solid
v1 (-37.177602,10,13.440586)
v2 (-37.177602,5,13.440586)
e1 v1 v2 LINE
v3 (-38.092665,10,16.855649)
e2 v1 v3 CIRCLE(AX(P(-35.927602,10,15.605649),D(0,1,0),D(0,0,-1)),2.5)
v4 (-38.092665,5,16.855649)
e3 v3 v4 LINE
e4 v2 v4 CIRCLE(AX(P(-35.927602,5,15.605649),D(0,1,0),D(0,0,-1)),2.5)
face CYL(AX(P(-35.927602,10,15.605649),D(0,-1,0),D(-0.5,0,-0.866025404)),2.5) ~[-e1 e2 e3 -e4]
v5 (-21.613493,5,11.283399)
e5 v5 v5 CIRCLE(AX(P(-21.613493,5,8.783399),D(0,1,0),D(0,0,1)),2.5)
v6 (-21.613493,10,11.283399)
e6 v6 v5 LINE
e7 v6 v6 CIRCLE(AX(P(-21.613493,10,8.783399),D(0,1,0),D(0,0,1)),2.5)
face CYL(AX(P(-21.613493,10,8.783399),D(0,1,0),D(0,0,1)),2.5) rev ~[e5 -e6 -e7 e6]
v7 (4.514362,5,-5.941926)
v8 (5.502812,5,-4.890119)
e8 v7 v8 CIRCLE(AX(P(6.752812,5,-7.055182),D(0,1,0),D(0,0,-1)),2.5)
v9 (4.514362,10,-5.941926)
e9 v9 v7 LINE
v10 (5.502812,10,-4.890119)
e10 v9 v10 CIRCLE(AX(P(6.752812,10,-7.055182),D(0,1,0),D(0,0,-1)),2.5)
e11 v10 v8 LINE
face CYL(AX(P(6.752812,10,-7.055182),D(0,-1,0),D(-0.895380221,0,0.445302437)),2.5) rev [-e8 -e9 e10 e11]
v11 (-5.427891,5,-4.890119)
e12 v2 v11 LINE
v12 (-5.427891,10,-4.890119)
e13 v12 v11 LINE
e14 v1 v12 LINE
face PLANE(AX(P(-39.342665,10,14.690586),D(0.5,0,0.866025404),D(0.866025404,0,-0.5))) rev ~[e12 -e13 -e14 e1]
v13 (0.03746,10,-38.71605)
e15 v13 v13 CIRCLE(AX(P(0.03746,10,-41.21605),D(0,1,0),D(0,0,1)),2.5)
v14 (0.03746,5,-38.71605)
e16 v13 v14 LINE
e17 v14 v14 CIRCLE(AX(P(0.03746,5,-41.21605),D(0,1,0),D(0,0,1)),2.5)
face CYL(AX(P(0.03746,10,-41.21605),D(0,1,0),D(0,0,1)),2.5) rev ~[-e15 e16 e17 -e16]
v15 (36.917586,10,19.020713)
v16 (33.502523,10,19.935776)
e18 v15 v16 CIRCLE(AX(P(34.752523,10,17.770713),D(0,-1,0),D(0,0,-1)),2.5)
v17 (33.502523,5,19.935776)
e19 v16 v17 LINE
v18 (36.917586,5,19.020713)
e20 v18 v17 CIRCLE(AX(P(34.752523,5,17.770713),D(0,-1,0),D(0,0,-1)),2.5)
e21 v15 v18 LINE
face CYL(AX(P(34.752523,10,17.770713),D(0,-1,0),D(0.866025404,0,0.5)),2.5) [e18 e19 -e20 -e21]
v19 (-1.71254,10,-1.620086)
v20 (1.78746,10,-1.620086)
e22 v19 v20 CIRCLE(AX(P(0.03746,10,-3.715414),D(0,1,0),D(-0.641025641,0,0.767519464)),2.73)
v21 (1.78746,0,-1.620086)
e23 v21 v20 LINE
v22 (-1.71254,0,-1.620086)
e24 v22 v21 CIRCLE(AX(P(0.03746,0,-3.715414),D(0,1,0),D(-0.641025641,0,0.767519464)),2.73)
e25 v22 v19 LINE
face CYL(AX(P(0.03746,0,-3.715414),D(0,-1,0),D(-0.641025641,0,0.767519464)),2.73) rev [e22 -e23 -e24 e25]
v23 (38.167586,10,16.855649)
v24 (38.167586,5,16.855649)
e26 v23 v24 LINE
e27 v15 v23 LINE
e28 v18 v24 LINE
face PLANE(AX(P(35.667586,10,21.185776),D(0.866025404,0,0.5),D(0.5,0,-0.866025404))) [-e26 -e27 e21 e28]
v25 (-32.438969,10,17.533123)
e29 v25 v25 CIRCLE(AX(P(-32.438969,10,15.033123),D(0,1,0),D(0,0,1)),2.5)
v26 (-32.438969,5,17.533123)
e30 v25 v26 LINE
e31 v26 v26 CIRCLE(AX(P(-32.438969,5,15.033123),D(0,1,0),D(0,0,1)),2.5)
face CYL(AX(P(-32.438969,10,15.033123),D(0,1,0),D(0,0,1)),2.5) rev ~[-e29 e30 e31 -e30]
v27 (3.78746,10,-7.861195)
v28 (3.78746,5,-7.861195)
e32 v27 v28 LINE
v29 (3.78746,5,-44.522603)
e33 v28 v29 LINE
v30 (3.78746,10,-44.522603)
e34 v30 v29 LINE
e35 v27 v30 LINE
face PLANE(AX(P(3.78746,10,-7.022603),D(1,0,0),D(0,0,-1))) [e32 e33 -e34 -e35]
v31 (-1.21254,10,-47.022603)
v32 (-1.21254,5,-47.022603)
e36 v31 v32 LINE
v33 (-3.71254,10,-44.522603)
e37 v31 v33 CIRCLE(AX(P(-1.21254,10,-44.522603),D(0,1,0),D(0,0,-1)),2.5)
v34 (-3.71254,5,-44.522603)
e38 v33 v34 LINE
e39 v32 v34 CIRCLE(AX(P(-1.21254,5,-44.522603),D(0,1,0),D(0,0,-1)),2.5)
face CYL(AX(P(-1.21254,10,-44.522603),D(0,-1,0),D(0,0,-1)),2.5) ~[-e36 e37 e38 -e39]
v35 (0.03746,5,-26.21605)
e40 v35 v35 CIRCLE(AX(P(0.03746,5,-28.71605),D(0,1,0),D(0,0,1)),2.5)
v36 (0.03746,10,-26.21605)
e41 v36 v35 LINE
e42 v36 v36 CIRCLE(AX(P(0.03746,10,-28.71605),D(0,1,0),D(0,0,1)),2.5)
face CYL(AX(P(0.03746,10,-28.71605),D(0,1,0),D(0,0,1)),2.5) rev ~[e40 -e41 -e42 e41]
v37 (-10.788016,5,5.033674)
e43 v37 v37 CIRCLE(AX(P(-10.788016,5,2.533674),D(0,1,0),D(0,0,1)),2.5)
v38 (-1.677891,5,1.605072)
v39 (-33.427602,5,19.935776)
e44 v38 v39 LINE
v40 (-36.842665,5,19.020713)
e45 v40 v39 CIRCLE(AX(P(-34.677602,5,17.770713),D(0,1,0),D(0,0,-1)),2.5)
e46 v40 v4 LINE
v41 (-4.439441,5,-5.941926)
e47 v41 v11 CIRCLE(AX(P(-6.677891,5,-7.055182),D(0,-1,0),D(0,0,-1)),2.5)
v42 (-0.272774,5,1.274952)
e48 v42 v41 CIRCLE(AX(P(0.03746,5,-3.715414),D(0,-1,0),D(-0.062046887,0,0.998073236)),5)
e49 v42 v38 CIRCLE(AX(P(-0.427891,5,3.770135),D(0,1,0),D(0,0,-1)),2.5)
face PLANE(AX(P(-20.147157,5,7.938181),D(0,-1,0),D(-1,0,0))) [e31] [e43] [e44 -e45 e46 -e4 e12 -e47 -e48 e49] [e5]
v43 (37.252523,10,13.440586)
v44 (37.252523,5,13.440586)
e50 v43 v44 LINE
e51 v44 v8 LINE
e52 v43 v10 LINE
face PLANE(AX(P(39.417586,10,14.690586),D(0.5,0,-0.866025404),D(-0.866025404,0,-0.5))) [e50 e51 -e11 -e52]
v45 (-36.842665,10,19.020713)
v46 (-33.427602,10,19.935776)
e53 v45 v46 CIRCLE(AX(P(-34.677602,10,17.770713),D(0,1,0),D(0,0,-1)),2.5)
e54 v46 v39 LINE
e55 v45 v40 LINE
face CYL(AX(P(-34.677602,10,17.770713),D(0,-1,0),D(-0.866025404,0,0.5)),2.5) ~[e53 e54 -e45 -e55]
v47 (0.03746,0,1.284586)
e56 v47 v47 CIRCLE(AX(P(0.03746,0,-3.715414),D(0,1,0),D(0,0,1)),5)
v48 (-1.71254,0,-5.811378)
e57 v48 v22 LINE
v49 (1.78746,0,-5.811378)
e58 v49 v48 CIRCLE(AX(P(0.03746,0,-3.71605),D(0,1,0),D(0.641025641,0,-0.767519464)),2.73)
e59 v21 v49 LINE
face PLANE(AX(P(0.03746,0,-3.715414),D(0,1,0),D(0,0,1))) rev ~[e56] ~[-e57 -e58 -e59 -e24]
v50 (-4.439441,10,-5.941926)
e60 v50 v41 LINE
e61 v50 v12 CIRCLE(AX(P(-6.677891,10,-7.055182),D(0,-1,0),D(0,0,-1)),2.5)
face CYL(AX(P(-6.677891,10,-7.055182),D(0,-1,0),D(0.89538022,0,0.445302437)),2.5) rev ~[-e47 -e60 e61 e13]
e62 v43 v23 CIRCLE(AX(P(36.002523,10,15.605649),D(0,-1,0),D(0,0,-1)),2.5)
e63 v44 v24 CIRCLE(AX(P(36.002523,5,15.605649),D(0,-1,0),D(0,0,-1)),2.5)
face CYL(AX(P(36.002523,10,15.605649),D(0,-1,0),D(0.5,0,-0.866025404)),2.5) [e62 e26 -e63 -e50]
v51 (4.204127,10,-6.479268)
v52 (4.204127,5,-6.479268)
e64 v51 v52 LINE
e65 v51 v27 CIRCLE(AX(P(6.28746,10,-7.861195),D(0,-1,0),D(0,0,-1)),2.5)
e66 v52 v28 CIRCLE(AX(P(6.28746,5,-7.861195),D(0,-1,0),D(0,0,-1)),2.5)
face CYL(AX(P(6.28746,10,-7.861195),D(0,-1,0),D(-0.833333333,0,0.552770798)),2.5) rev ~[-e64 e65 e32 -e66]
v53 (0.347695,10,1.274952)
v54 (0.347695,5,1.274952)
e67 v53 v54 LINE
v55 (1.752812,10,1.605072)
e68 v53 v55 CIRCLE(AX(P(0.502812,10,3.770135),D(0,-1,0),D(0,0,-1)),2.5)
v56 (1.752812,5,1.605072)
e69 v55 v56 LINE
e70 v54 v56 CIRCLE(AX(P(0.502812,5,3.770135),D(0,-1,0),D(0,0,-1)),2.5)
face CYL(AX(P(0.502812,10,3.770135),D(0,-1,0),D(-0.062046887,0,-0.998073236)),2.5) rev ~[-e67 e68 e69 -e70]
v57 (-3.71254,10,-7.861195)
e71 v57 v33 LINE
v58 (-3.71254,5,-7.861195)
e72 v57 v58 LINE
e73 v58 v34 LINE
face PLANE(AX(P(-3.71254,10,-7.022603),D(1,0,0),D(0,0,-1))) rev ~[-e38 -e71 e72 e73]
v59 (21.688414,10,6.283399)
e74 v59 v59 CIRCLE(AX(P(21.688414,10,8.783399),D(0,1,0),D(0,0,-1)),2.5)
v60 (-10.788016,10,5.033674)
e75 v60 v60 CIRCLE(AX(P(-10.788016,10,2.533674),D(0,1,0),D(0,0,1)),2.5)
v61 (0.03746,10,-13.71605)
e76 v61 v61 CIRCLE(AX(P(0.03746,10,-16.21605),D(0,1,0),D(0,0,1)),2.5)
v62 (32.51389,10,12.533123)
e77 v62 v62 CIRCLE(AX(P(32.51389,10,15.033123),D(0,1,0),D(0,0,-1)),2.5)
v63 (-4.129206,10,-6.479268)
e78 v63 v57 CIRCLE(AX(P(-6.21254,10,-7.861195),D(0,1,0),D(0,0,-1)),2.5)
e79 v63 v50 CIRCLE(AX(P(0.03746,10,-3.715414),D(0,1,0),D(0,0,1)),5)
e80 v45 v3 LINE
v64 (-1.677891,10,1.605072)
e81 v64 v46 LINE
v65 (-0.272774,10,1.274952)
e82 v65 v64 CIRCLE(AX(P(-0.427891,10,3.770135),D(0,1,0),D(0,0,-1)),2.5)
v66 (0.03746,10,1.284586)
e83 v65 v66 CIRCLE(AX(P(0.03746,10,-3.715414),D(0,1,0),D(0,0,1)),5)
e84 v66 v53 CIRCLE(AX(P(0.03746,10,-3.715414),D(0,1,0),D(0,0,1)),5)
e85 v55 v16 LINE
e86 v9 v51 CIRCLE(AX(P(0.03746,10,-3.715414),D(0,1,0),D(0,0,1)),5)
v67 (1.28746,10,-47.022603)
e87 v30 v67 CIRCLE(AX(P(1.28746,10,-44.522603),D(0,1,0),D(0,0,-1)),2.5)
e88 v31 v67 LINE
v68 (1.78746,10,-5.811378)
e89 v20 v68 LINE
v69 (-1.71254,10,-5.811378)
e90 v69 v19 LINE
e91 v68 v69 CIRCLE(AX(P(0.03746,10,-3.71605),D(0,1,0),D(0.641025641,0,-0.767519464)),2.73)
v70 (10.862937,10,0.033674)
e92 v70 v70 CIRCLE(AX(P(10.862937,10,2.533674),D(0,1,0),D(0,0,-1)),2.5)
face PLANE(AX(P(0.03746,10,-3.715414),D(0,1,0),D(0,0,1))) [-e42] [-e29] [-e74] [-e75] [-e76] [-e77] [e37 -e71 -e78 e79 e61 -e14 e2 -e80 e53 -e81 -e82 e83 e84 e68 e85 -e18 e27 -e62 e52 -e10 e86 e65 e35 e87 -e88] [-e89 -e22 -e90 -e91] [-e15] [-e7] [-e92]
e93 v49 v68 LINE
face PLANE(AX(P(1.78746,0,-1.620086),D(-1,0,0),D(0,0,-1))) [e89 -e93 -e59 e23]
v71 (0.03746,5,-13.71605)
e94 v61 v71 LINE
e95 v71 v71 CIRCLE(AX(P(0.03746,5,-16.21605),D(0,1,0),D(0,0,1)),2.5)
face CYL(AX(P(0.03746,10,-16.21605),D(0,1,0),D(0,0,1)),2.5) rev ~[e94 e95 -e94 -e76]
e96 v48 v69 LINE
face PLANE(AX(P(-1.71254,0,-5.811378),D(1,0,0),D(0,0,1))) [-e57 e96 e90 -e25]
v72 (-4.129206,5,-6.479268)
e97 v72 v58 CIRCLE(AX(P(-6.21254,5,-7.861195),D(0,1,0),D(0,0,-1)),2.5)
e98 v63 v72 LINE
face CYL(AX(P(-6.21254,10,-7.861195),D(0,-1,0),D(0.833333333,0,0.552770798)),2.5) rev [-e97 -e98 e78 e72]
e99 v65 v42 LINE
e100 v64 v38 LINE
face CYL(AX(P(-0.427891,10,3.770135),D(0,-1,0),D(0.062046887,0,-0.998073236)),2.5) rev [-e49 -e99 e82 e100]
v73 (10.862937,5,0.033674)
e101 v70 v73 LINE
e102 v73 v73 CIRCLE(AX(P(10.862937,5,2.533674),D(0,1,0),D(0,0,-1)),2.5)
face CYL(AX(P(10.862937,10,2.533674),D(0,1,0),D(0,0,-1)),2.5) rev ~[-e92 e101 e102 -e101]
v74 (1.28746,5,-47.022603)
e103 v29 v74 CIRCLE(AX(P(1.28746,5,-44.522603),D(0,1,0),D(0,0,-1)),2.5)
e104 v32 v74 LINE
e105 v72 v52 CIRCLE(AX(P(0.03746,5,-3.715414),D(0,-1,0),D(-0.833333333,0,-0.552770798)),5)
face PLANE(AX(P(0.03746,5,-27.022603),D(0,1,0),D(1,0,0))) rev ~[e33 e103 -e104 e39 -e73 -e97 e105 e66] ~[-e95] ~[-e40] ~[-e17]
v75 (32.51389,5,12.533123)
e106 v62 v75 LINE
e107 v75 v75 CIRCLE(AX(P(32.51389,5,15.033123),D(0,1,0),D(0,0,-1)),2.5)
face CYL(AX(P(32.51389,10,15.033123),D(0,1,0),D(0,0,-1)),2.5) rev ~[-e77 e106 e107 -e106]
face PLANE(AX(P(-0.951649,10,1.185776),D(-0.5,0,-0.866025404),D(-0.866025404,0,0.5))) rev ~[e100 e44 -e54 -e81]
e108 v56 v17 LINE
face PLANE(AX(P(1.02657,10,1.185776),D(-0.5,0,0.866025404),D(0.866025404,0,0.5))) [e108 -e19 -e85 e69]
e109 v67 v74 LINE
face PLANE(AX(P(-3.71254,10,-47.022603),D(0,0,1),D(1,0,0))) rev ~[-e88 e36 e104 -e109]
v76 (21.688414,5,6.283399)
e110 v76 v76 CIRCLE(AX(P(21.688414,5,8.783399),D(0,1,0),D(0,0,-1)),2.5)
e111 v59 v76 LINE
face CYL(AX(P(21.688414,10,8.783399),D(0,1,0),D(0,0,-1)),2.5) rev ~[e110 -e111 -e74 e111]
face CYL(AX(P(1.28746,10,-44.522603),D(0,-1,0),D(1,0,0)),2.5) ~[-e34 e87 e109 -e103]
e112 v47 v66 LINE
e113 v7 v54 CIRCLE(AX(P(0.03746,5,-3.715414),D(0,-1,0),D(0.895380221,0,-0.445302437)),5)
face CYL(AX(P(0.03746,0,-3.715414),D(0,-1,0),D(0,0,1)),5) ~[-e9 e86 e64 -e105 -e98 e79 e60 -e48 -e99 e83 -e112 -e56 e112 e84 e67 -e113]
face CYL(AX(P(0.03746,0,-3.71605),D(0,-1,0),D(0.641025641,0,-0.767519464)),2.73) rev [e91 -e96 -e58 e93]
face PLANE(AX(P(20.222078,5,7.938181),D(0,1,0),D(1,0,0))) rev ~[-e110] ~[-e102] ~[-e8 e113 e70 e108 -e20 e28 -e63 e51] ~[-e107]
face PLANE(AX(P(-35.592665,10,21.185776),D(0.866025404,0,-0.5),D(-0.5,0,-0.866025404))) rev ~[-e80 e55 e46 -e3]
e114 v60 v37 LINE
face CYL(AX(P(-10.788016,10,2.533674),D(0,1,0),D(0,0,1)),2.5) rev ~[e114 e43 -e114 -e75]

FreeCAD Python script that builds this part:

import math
import FreeCAD as App
import Part
import Sketcher
Q = App.Units.Quantity


def edges_at(feature, points):
    """Names of the edges that pass closest to the given points."""
    edges = feature.Shape.Edges
    near = lambda p: min(range(len(edges)), key=lambda i: edges[i].distToShape(Part.Vertex(*p))[0])
    return sorted({f"Edge{near(p) + 1}" for p in points})


def add_polygon(sketch, points):
    """Adds a closed chain of lines whose ends are joined by coincident constraints."""
    first, n = sketch.GeometryCount, len(points)
    for a, b in zip(points, points[1:] + points[:1]):
        sketch.addGeometry(Part.LineSegment(App.Vector(*a, 0), App.Vector(*b, 0)), False)
    for i in range(n):
        sketch.addConstraint(Sketcher.Constraint("Coincident", first + i, 2, first + (i + 1) % n, 1))

doc = App.newDocument("Part")
body = doc.addObject("PartDesign::Body", "Body")

sketch1 = doc.addObject("Sketcher::SketchObject", "Sketch")
body.addObject(sketch1)
sketch1.AttachmentSupport = (doc.XZ_Plane, [""])
sketch1.MapMode = "FlatFace"
sketch1.addGeometry([
    Part.Circle(App.Vector(0, -3.7, 0), App.Vector(0, 0, 1), 5),
    Part.ArcOfCircle(Part.Circle(App.Vector(0, -3.7, 0), App.Vector(0, 0, 1), 2.7), math.radians(50), math.radians(130)),
    Part.LineSegment(App.Vector(-1.7, -1.6, 0), App.Vector(-1.7, -5.8, 0)),
    Part.ArcOfCircle(Part.Circle(App.Vector(0, -3.7, 0), App.Vector(0, 0, 1), 2.7), math.radians(-130), math.radians(-50)),
    Part.LineSegment(App.Vector(1.8, -5.8, 0), App.Vector(1.8, -1.6, 0)),
], False)
sketch1.addConstraint([
    Sketcher.Constraint("Coincident", 1, 2, 2, 1),
    Sketcher.Constraint("Coincident", 2, 2, 3, 1),
    Sketcher.Constraint("Coincident", 3, 2, 4, 1),
    Sketcher.Constraint("Coincident", 4, 2, 1, 1),
    Sketcher.Constraint("Vertical", 2),
    Sketcher.Constraint("Vertical", 4),
    Sketcher.Constraint("Coincident", 1, 3, 0, 3),
    Sketcher.Constraint("Equal", 1, 3),
    Sketcher.Constraint("Horizontal", 2, 2, 3, 2),
    Sketcher.Constraint("Horizontal", 1, 2, 4, 2),
    Sketcher.Constraint("Diameter", 0, 10.0),
    Sketcher.Constraint("Radius", 1, 2.73),
    Sketcher.Constraint("DistanceX", 2, 2, 3, 2, 3.5),
    Sketcher.Constraint("DistanceY", 2, 2, 2, 1, 4.191293),
    Sketcher.Constraint("DistanceX", -1, 1, 0, 3, 0.03746),
    Sketcher.Constraint("DistanceY", 3, 3, -1, 1, 3.71605),
])
pad1 = doc.addObject("PartDesign::Pad", "Pad")
body.addObject(pad1)
pad1.Profile = sketch1
pad1.Length = 10
pad1.Reversed = True

sketch2 = doc.addObject("Sketcher::SketchObject", "Sketch001")
body.addObject(sketch2)
sketch2.AttachmentSupport = (doc.XZ_Plane, [""])
sketch2.MapMode = "FlatFace"
sketch2.AttachmentOffset = App.Placement(App.Vector(0, 0, -10), App.Rotation())
add_polygon(sketch2, [(5, -5), (1, 1), (36, 21), (39, 15)])
add_polygon(sketch2, [(-4, -47), (-4, -7), (4, -7), (4, -47)])
add_polygon(sketch2, [(-1, 1), (-5, -5), (-39, 15), (-36, 21)])
sketch2.addConstraint([
    Sketcher.Constraint("Vertical", 4),
    Sketcher.Constraint("Horizontal", 5),
    Sketcher.Constraint("Vertical", 6),
    Sketcher.Constraint("Horizontal", 7),
    Sketcher.Constraint("Perpendicular", 0, 1),
    Sketcher.Constraint("Perpendicular", 1, 2),
    Sketcher.Constraint("Perpendicular", 2, 3),
    Sketcher.Constraint("Perpendicular", 8, 9),
    Sketcher.Constraint("Perpendicular", 9, 10),
    Sketcher.Constraint("Perpendicular", 10, 11),
    Sketcher.Constraint("Horizontal", 3, 2, 8, 2),
    Sketcher.Constraint("Horizontal", 2, 2, 9, 2),
    Sketcher.Constraint("Horizontal", 1, 2, 10, 2),
    Sketcher.Constraint("Equal", 2, 8),
    Sketcher.Constraint("DistanceY", 4, 1, 4, 2, 40.0),
    Sketcher.Constraint("Angle", 0, Q("120 deg")),
    Sketcher.Constraint("Distance", 1, 40.0),
    Sketcher.Constraint("DistanceX", 5, 1, 5, 2, 7.5),
    Sketcher.Constraint("Distance", 0, 7.5),
    Sketcher.Constraint("DistanceX", -1, 1, 0, 2, 1.02657),
    Sketcher.Constraint("DistanceX", 4, 2, -1, 1, 3.71254),
    Sketcher.Constraint("DistanceX", 8, 2, -1, 1, 4.701649),
    Sketcher.Constraint("DistanceY", 4, 2, 3, 2, 1.713188),
    Sketcher.Constraint("DistanceY", -1, 1, 0, 2, 1.185776),
])
pad2 = doc.addObject("PartDesign::Pad", "Pad001")
body.addObject(pad2)
pad2.Profile = sketch2
pad2.Length = 5

sketch3 = doc.addObject("Sketcher::SketchObject", "Sketch002")
body.addObject(sketch3)
sketch3.AttachmentSupport = (doc.XZ_Plane, [""])
sketch3.MapMode = "FlatFace"
sketch3.AttachmentOffset = App.Placement(App.Vector(0, 0, -10), App.Rotation())
sketch3.addGeometry([
    Part.Circle(App.Vector(0, -16.2, 0), App.Vector(0, 0, 1), 2.5),
    Part.Circle(App.Vector(0, -28.7, 0), App.Vector(0, 0, 1), 2.5),
    Part.Circle(App.Vector(0, -41.2, 0), App.Vector(0, 0, 1), 2.5),
    Part.Circle(App.Vector(-10.8, 2.5, 0), App.Vector(0, 0, 1), 2.5),
    Part.Circle(App.Vector(-21.6, 8.8, 0), App.Vector(0, 0, 1), 2.5),
    Part.Circle(App.Vector(-32.4, 15, 0), App.Vector(0, 0, 1), 2.5),
    Part.Circle(App.Vector(10.9, 2.5, 0), App.Vector(0, 0, 1), 2.5),
    Part.Circle(App.Vector(21.7, 8.8, 0), App.Vector(0, 0, 1), 2.5),
    Part.Circle(App.Vector(32.5, 15, 0), App.Vector(0, 0, 1), 2.5),
], False)
sketch3.addConstraint([
    Sketcher.Constraint("Equal", 0, 1),
    Sketcher.Constraint("Equal", 1, 2),
    Sketcher.Constraint("Equal", 2, 3),
    Sketcher.Constraint("Equal", 3, 4),
    Sketcher.Constraint("Equal", 4, 5),
    Sketcher.Constraint("Equal", 5, 6),
    Sketcher.Constraint("Equal", 6, 7),
    Sketcher.Constraint("Equal", 7, 8),
    Sketcher.Constraint("Horizontal", 3, 3, 6, 3),
    Sketcher.Constraint("Horizontal", 4, 3, 7, 3),
    Sketcher.Constraint("Horizontal", 5, 3, 8, 3),
    Sketcher.Constraint("Vertical", 0, 3, 1, 3),
    Sketcher.Constraint("Vertical", 1, 3, 2, 3),
    Sketcher.Constraint("Diameter", 0, 5.0),
    Sketcher.Constraint("DistanceY", 2, 3, 0, 3, 25.0),
    Sketcher.Constraint("DistanceY", 1, 3, 0, 3, 12.5),
    Sketcher.Constraint("DistanceY", -1, 1, 4, 3, 8.783399),
    Sketcher.Constraint("DistanceX", -1, 1, 0, 3, 0.03746),
    Sketcher.Constraint("DistanceY", 0, 3, -1, 1, 16.21605),
    Sketcher.Constraint("DistanceX", 5, 3, -1, 1, 32.438969),
    Sketcher.Constraint("DistanceX", -1, 1, 8, 3, 32.51389),
    Sketcher.Constraint("DistanceY", 3, 3, 5, 3, 12.499449),
    Sketcher.Constraint("DistanceX", 4, 3, 6, 3, 32.47643),
    Sketcher.Constraint("DistanceX", 3, 3, 7, 3, 32.47643),
    Sketcher.Constraint("DistanceX", 3, 3, -1, 1, 10.788016),
    Sketcher.Constraint("DistanceY", -1, 1, 3, 3, 2.533674),
    Sketcher.Constraint("DistanceX", 4, 3, -1, 1, 21.613493),
])
pocket1 = doc.addObject("PartDesign::Pocket", "Pocket")
body.addObject(pocket1)
pocket1.Profile = sketch3
pocket1.Length = 100
pocket1.Reversed = True
doc.recompute()

fillet = doc.addObject("PartDesign::Fillet", "Fillet")
body.addObject(fillet)
fillet.Base = (pocket1, edges_at(pocket1, [
    (4.777, 7.5, -5.309),
    (1.027, 7.5, 1.186),
    (-3.713, 7.5, -7.023),
    (3.787, 7.5, -7.023),
    (-4.702, 7.5, -5.309),
    (-0.952, 7.5, 1.186),
]))
fillet.Radius = 2.5
doc.recompute()

fillet2 = doc.addObject("PartDesign::Fillet", "Fillet001")
body.addObject(fillet2)
fillet2.Base = (fillet, edges_at(fillet, [
    (39.418, 7.5, 14.691),
    (35.668, 7.5, 21.186),
    (-3.713, 7.5, -47.023),
    (3.787, 7.5, -47.023),
    (-39.343, 7.5, 14.691),
    (-35.593, 7.5, 21.186),
]))
fillet2.Radius = 2.5

doc.recompute()
